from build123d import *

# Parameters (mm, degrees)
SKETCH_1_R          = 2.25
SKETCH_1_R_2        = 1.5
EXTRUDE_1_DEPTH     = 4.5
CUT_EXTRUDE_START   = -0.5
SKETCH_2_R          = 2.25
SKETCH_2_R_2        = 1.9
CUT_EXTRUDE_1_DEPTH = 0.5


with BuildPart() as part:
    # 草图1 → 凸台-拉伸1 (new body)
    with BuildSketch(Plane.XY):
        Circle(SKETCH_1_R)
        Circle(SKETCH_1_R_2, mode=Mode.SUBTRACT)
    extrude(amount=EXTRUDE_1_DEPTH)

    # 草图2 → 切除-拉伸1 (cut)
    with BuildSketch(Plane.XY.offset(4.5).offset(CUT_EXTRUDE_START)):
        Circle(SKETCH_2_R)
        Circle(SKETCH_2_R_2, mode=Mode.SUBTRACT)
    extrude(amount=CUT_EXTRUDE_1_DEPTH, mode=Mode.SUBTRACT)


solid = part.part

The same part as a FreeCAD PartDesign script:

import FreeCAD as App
import Part
import Sketcher
Q = App.Units.Quantity

doc = App.newDocument("Part")
params = doc.addObject("Spreadsheet::Sheet", "Params")
for row, (alias, value) in enumerate([
    ("sketch1_diameter", "3 mm"),
    ("sketch1_diameter2", "4.5 mm"),
    ("pad1_length", "4.5 mm"),
    ("sketch2_diameter", "4.5 mm"),
    ("sketch2_diameter2", "3.8 mm"),
    ("pocket1_length", "0.5 mm"),
], start=1):
    params.set(f"A{row}", alias)
    params.set(f"B{row}", "=" + value)
    params.setAlias(f"B{row}", alias)

body = doc.addObject("PartDesign::Body", "Body")

# Sketch on XY plane
sketch1 = body.newObject("Sketcher::SketchObject", "Sketch")
sketch1.AttachmentSupport = (doc.getObject("XY_Plane"), [""])
sketch1.MapMode = "FlatFace"
sketch1.addGeometry([
    Part.Circle(App.Vector(0, 0, 0), App.Vector(0, 0, 1), 2.25),
    Part.Circle(App.Vector(0, 0, 0), App.Vector(0, 0, 1), 1.5),
], False)
sketch1.addConstraint([
    Sketcher.Constraint("Coincident", 0, 3, -1, 1),
    Sketcher.Constraint("Coincident", 1, 3, -1, 1),
    Sketcher.Constraint("Diameter", 1, Q("3 mm")),
    Sketcher.Constraint("Diameter", 0, Q("4.5 mm")),
])
sketch1.setExpression("Constraints[2]", "Params.sketch1_diameter")
sketch1.setExpression("Constraints[3]", "Params.sketch1_diameter2")
pad1 = body.newObject("PartDesign::Pad", "Pad")
pad1.Profile = sketch1
pad1.setExpression("Length", "Params.pad1_length")

# Sketch on XY plane
sketch2 = body.newObject("Sketcher::SketchObject", "Sketch001")
sketch2.AttachmentSupport = (doc.getObject("XY_Plane"), [""])
sketch2.MapMode = "FlatFace"
sketch2.AttachmentOffset = App.Placement(App.Vector(0, 0, 4), App.Rotation())
sketch2.addGeometry([
    Part.Circle(App.Vector(0, 0, 0), App.Vector(0, 0, 1), 2.25),
    Part.Circle(App.Vector(0, 0, 0), App.Vector(0, 0, 1), 1.9),
], False)
sketch2.addConstraint([
    Sketcher.Constraint("Coincident", 0, 3, -1, 1),
    Sketcher.Constraint("Coincident", 1, 3, -1, 1),
    Sketcher.Constraint("Diameter", 0, Q("4.5 mm")),
    Sketcher.Constraint("Diameter", 1, Q("3.8 mm")),
])
sketch2.setExpression("Constraints[2]", "Params.sketch2_diameter")
sketch2.setExpression("Constraints[3]", "Params.sketch2_diameter2")
pocket1 = body.newObject("PartDesign::Pocket", "Pocket")
pocket1.Profile = sketch2
pocket1.setExpression("Length", "Params.pocket1_length")
pocket1.Reversed = True

doc.recompute()
